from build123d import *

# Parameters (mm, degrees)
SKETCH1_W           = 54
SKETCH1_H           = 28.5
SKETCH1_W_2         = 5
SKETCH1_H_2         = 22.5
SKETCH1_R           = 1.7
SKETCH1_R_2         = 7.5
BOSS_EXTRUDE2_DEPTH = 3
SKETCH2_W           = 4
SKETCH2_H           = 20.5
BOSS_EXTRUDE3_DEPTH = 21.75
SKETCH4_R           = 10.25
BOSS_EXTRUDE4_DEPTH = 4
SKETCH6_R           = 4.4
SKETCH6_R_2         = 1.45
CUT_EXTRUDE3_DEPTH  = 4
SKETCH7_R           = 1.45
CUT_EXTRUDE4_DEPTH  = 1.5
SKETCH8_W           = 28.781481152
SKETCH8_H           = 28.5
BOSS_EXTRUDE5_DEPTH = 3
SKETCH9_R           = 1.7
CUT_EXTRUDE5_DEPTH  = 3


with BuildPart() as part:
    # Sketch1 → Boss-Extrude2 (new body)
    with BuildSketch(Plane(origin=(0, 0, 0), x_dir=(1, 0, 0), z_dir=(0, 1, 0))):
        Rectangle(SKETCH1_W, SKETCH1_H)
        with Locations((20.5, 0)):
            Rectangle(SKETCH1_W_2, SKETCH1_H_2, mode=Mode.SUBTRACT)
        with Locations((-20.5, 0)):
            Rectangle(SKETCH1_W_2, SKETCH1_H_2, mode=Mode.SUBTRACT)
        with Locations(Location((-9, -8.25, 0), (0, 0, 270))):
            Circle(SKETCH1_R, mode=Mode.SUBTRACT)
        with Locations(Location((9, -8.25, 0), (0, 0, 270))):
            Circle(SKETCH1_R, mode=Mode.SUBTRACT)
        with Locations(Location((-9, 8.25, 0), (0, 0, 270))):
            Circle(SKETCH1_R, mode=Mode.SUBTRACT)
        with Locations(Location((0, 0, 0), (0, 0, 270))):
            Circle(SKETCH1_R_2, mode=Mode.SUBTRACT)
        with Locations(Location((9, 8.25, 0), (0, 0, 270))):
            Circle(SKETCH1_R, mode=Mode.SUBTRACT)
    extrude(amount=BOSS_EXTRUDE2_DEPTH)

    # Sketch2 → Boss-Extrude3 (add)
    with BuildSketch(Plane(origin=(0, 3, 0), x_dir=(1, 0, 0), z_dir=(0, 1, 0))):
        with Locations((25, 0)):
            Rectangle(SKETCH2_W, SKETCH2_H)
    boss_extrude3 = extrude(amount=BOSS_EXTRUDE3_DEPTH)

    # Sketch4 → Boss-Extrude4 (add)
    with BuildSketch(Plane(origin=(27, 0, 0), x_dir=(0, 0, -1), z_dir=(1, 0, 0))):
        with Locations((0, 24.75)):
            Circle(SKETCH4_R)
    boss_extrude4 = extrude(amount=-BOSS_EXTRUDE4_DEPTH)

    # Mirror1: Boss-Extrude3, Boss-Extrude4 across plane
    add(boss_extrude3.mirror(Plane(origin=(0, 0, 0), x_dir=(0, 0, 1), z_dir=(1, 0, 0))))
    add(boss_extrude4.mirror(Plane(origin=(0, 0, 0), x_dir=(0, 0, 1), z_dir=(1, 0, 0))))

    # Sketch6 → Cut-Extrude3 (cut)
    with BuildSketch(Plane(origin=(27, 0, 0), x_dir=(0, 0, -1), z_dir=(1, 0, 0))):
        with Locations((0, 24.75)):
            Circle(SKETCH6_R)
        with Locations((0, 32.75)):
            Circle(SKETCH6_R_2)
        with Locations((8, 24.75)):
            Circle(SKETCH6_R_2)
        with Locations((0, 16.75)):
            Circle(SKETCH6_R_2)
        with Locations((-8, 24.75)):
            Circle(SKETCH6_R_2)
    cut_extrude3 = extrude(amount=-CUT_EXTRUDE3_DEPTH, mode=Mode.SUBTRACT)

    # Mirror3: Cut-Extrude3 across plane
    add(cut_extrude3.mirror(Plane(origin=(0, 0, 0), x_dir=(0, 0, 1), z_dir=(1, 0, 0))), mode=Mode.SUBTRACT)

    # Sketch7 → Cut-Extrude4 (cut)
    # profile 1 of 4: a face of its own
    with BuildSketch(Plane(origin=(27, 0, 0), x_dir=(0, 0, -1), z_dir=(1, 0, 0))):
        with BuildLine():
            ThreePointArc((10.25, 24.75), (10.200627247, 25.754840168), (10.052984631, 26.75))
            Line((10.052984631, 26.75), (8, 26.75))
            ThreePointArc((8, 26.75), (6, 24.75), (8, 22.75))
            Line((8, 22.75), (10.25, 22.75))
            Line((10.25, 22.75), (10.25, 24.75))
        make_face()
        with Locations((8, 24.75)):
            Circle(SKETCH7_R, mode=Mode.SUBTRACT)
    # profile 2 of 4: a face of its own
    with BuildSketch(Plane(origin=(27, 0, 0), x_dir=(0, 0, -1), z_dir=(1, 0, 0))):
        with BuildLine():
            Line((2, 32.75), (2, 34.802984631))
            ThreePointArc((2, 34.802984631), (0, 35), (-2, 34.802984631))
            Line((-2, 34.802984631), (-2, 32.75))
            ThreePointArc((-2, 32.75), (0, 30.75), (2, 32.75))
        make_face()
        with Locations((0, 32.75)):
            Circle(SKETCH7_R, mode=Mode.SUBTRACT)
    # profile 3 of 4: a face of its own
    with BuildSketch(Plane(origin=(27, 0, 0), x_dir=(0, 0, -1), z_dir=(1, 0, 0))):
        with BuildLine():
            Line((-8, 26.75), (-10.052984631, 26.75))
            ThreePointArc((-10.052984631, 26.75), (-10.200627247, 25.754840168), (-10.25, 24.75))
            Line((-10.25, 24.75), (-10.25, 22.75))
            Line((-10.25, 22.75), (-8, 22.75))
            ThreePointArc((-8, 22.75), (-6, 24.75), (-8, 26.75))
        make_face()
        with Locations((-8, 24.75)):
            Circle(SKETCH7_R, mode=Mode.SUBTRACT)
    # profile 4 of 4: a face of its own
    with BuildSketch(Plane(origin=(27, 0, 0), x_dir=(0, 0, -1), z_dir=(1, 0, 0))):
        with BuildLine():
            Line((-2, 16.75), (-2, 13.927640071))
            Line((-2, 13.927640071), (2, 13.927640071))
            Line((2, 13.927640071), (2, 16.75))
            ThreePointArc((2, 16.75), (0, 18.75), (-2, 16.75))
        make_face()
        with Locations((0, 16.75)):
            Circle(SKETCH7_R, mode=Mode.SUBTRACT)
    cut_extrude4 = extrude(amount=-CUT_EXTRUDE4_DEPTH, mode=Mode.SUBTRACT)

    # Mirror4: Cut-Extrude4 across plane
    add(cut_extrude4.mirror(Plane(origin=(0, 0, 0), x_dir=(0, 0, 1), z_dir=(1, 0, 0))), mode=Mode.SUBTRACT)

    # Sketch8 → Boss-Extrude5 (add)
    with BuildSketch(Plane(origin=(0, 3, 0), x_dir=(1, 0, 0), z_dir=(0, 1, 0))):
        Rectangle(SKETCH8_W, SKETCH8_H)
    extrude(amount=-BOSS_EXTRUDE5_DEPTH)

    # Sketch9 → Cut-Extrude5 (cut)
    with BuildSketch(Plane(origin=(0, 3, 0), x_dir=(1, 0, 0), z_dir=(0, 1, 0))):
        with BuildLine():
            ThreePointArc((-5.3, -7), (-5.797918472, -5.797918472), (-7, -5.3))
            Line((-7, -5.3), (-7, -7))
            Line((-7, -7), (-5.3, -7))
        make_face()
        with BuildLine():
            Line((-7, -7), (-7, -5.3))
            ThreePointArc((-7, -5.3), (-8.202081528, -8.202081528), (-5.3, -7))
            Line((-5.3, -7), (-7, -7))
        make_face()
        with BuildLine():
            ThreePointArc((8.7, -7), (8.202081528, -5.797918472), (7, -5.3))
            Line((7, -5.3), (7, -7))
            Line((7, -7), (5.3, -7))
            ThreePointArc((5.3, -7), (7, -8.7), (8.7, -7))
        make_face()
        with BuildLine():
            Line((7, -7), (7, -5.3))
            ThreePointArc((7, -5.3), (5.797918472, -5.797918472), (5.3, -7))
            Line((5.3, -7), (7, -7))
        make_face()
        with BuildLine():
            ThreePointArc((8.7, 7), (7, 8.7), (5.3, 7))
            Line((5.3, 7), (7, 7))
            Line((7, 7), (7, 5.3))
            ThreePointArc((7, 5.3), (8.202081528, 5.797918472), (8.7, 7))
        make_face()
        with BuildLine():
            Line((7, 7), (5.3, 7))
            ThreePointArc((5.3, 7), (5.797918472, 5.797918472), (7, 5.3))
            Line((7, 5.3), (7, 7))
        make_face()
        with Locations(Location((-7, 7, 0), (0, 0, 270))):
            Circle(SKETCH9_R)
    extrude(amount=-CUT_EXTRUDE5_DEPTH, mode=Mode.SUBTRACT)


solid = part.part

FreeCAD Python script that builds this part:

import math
import FreeCAD as App
import Part
import Sketcher

V = App.Vector
Q = App.Units.Quantity

doc = App.newDocument("Part")
body = doc.addObject("PartDesign::Body", "Body")

# Sketch on XZ plane
sketch1 = doc.addObject("Sketcher::SketchObject", "Sketch")
body.addObject(sketch1)
sketch1.AttachmentSupport = (doc.XZ_Plane, [""])
sketch1.MapMode = "FlatFace"
sketch1.addGeometry([
    Part.LineSegment(V(-27, -14.2, 0), V(-27, 14.2, 0)),  # 0
    Part.LineSegment(V(-27, 14.2, 0), V(27, 14.2, 0)),  # 1
    Part.LineSegment(V(27, 14.2, 0), V(27, -14.2, 0)),  # 2
    Part.LineSegment(V(27, -14.2, 0), V(-27, -14.2, 0)),  # 3
    Part.Circle(V(-9, 8.2, 0), V(0, 0, 1), 1.7),  # 4
    Part.Circle(V(9, 8.2, 0), V(0, 0, 1), 1.7),  # 5
    Part.LineSegment(V(-18, 11.2, 0), V(-23, 11.2, 0)),  # 6
    Part.LineSegment(V(-23, 11.2, 0), V(-23, -11.2, 0)),  # 7
    Part.LineSegment(V(-23, -11.2, 0), V(-18, -11.2, 0)),  # 8
    Part.LineSegment(V(-18, -11.2, 0), V(-18, 11.2, 0)),  # 9
    Part.Circle(V(-9, -8.2, 0), V(0, 0, 1), 1.7),  # 10
    Part.Circle(V(0, 0, 0), V(0, 0, 1), 7.5),  # 11
    Part.LineSegment(V(23, 11.2, 0), V(18, 11.2, 0)),  # 12
    Part.LineSegment(V(18, 11.2, 0), V(18, -11.2, 0)),  # 13
    Part.LineSegment(V(18, -11.2, 0), V(23, -11.2, 0)),  # 14
    Part.LineSegment(V(23, -11.2, 0), V(23, 11.2, 0)),  # 15
    Part.Circle(V(9, -8.2, 0), V(0, 0, 1), 1.7),  # 16
], False)
sketch1.addConstraint([
    Sketcher.Constraint("Coincident", 0, 2, 1, 1),
    Sketcher.Constraint("Coincident", 1, 2, 2, 1),
    Sketcher.Constraint("Coincident", 2, 2, 3, 1),
    Sketcher.Constraint("Coincident", 3, 2, 0, 1),
    Sketcher.Constraint("Coincident", 6, 2, 7, 1),
    Sketcher.Constraint("Coincident", 7, 2, 8, 1),
    Sketcher.Constraint("Coincident", 8, 2, 9, 1),
    Sketcher.Constraint("Coincident", 9, 2, 6, 1),
    Sketcher.Constraint("Coincident", 12, 2, 13, 1),
    Sketcher.Constraint("Coincident", 13, 2, 14, 1),
    Sketcher.Constraint("Coincident", 14, 2, 15, 1),
    Sketcher.Constraint("Coincident", 15, 2, 12, 1),
    Sketcher.Constraint("Vertical", 0),
    Sketcher.Constraint("Horizontal", 1),
    Sketcher.Constraint("Vertical", 2),
    Sketcher.Constraint("Horizontal", 3),
    Sketcher.Constraint("Horizontal", 6),
    Sketcher.Constraint("Vertical", 7),
    Sketcher.Constraint("Horizontal", 8),
    Sketcher.Constraint("Vertical", 9),
    Sketcher.Constraint("Horizontal", 12),
    Sketcher.Constraint("Vertical", 13),
    Sketcher.Constraint("Horizontal", 14),
    Sketcher.Constraint("Vertical", 15),
    Sketcher.Constraint("Coincident", 11, 3, -1, 1),
    Sketcher.Constraint("Equal", 4, 5),
    Sketcher.Constraint("Equal", 5, 10),
    Sketcher.Constraint("Equal", 10, 16),
    Sketcher.Constraint("Symmetric", 5, 3, 10, 3, -1, 1),
    Sketcher.Constraint("Symmetric", 4, 3, 16, 3, -1, 1),
    Sketcher.Constraint("Symmetric", 0, 2, 2, 2, -1, 1),
    Sketcher.Constraint("Symmetric", 8, 2, 12, 2, -1, 1),
    Sketcher.Constraint("Symmetric", 6, 2, 14, 2, -1, 1),
    Sketcher.Constraint("Symmetric", 4, 3, 5, 3, -2),
    Sketcher.Constraint("Horizontal", 9, 2, 12, 2),
    Sketcher.Constraint("Diameter", 11, Q("15 mm")),
    Sketcher.Constraint("Diameter", 4, Q("3.4 mm")),
    Sketcher.Constraint("DistanceX", 1, 1, 1, 2, Q("54 mm")),
    Sketcher.Constraint("DistanceX", 6, 2, 6, 1, Q("5 mm")),
    Sketcher.Constraint("DistanceY", 0, 1, 0, 2, Q("28.5 mm")),
    Sketcher.Constraint("DistanceY", 7, 2, 7, 1, Q("22.5 mm")),
    Sketcher.Constraint("DistanceX", 4, 3, -1, 1, Q("9 mm")),
    Sketcher.Constraint("DistanceX", 6, 2, -1, 1, Q("23 mm")),
    Sketcher.Constraint("DistanceY", 4, 3, 0, 2, Q("6 mm")),
])
pad1 = doc.addObject("PartDesign::Pad", "Pad")
body.addObject(pad1)
pad1.Profile = sketch1
pad1.Length = 3
pad1.Reversed = True

# Sketch on XZ plane
sketch2 = doc.addObject("Sketcher::SketchObject", "Sketch001")
body.addObject(sketch2)
sketch2.AttachmentSupport = (doc.XZ_Plane, [""])
sketch2.MapMode = "FlatFace"
sketch2.AttachmentOffset = App.Placement(V(0, 0, -3), App.Rotation())
sketch2.addGeometry([
    Part.LineSegment(V(23, -10.2, 0), V(23, 10.2, 0)),
    Part.LineSegment(V(23, 10.2, 0), V(27, 10.2, 0)),
    Part.LineSegment(V(27, 10.2, 0), V(27, -10.2, 0)),
    Part.LineSegment(V(27, -10.2, 0), V(23, -10.2, 0)),
], False)
sketch2.addConstraint([
    Sketcher.Constraint("Coincident", 0, 2, 1, 1),
    Sketcher.Constraint("Coincident", 1, 2, 2, 1),
    Sketcher.Constraint("Coincident", 2, 2, 3, 1),
    Sketcher.Constraint("Coincident", 3, 2, 0, 1),
    Sketcher.Constraint("Vertical", 0),
    Sketcher.Constraint("Horizontal", 1),
    Sketcher.Constraint("Vertical", 2),
    Sketcher.Constraint("Horizontal", 3),
    Sketcher.Constraint("DistanceX", 1, 1, 1, 2, Q("4 mm")),
    Sketcher.Constraint("DistanceY", 0, 1, 0, 2, Q("20.5 mm")),
    Sketcher.Constraint("DistanceX", -1, 1, 0, 2, Q("23 mm")),
    Sketcher.Constraint("DistanceY", -1, 1, 0, 2, Q("10.25 mm")),
])
pad2 = doc.addObject("PartDesign::Pad", "Pad001")
body.addObject(pad2)
pad2.Profile = sketch2
pad2.Length = 21.75
pad2.Reversed = True

# Sketch on YZ plane
sketch3 = doc.addObject("Sketcher::SketchObject", "Sketch002")
body.addObject(sketch3)
sketch3.AttachmentSupport = (doc.YZ_Plane, [""])
sketch3.MapMode = "FlatFace"
sketch3.AttachmentOffset = App.Placement(V(0, 0, 27), App.Rotation())
sketch3.addGeometry(Part.Circle(V(25, 0, 0), V(0, 0, 1), 10), False)
sketch3.addConstraint([
    Sketcher.Constraint("PointOnObject", 0, 3, -1),
    Sketcher.Constraint("Diameter", 0, Q("20.5 mm")),
    Sketcher.Constraint("DistanceX", -1, 1, 0, 3, Q("24.75 mm")),
])
pad3 = doc.addObject("PartDesign::Pad", "Pad002")
body.addObject(pad3)
pad3.Profile = sketch3
pad3.Length = 4
pad3.Reversed = True
doc.recompute()

mirrored = doc.addObject("PartDesign::Mirrored", "Mirrored")
body.addObject(mirrored)
mirrored.Originals = [pad2, pad3]
mirrored.MirrorPlane = (doc.YZ_Plane, [""])
body.Tip = mirrored

# Sketch on YZ plane
sketch4 = doc.addObject("Sketcher::SketchObject", "Sketch003")
body.addObject(sketch4)
sketch4.AttachmentSupport = (doc.YZ_Plane, [""])
sketch4.MapMode = "FlatFace"
sketch4.AttachmentOffset = App.Placement(V(0, 0, 27), App.Rotation())
sketch4.addGeometry([
    Part.Circle(V(24.8, 0, 0), V(0, 0, 1), 4.4),  # 0
    Part.Circle(V(32.8, 0, 0), V(0, 0, 1), 1.4),  # 1
    Part.Circle(V(24.8, -8, 0), V(0, 0, 1), 1.4),  # 2
    Part.Circle(V(16.8, 0, 0), V(0, 0, 1), 1.4),  # 3
    Part.Circle(V(24.8, 8, 0), V(0, 0, 1), 1.4),  # 4
], False)
sketch4.addConstraint([
    Sketcher.Constraint("Equal", 1, 2),
    Sketcher.Constraint("Equal", 2, 3),
    Sketcher.Constraint("Equal", 3, 4),
    Sketcher.Constraint("Symmetric", 2, 3, 4, 3, -1),
    Sketcher.Constraint("PointOnObject", 0, 3, -1),
    Sketcher.Constraint("PointOnObject", 1, 3, -1),
    Sketcher.Constraint("PointOnObject", 3, 3, -1),
    Sketcher.Constraint("Vertical", 0, 3, 2, 3),
    Sketcher.Constraint("Diameter", 0, Q("8.8 mm")),
    Sketcher.Constraint("Diameter", 1, Q("2.9 mm")),
    Sketcher.Constraint("DistanceY", 2, 3, -1, 1, Q("8 mm")),
    Sketcher.Constraint("DistanceX", 0, 3, 1, 3, Q("8 mm")),
    Sketcher.Constraint("DistanceX", 3, 3, 0, 3, Q("8 mm")),
    Sketcher.Constraint("DistanceX", -1, 1, 0, 3, Q("24.75 mm")),
])
pocket1 = doc.addObject("PartDesign::Pocket", "Pocket")
body.addObject(pocket1)
pocket1.Profile = sketch4
pocket1.Length = 4
doc.recompute()

mirrored2 = doc.addObject("PartDesign::Mirrored", "Mirrored001")
body.addObject(mirrored2)
mirrored2.Originals = [pocket1]
mirrored2.MirrorPlane = (doc.YZ_Plane, [""])
body.Tip = mirrored2

# Sketch on YZ plane
sketch5 = doc.addObject("Sketcher::SketchObject", "Sketch004")
body.addObject(sketch5)
sketch5.AttachmentSupport = (doc.YZ_Plane, [""])
sketch5.MapMode = "FlatFace"
sketch5.AttachmentOffset = App.Placement(V(0, 0, 27), App.Rotation())
sketch5.addGeometry([
    Part.ArcOfCircle(Part.Circle(V(24.7, 0, 0), V(0, 0, 1), 10.3), math.radians(-90), math.radians(-78.75)),  # 0
    Part.LineSegment(V(26.8, -10.1, 0), V(26.8, -8, 0)),  # 1
    Part.ArcOfCircle(Part.Circle(V(24.8, -8, 0), V(0, 0, 1), 2), math.radians(0), math.radians(180)),  # 2
    Part.LineSegment(V(22.8, -8, 0), V(22.8, -10.2, 0)),  # 3
    Part.LineSegment(V(22.8, -10.2, 0), V(24.8, -10.2, 0)),  # 4
    Part.Circle(V(24.8, -8, 0), V(0, 0, 1), 1.4),  # 5
    Part.LineSegment(V(32.8, -2, 0), V(34.8, -2, 0)),  # 6
    Part.ArcOfCircle(Part.Circle(V(24.8, 0, 0), V(0, 0, 1), 10.2), math.radians(-11), math.radians(11)),  # 7
    Part.LineSegment(V(34.8, 2, 0), V(32.8, 2, 0)),  # 8
    Part.ArcOfCircle(Part.Circle(V(32.8, 0, 0), V(0, 0, 1), 2), math.radians(90), math.radians(270)),  # 9
    Part.Circle(V(32.8, 0, 0), V(0, 0, 1), 1.4),  # 10
    Part.LineSegment(V(26.8, 8, 0), V(26.8, 10.1, 0)),  # 11
    Part.ArcOfCircle(Part.Circle(V(24.7, 0, 0), V(0, 0, 1), 10.3), math.radians(78.75), math.radians(90)),  # 12
    Part.LineSegment(V(24.8, 10.2, 0), V(22.8, 10.2, 0)),  # 13
    Part.LineSegment(V(22.8, 10.2, 0), V(22.8, 8, 0)),  # 14
    Part.ArcOfCircle(Part.Circle(V(24.8, 8, 0), V(0, 0, 1), 2), math.radians(180), math.radians(360)),  # 15
    Part.Circle(V(24.8, 8, 0), V(0, 0, 1), 1.4),  # 16
    Part.LineSegment(V(16.8, 2, 0), V(13.9, 2, 0)),  # 17
    Part.LineSegment(V(13.9, 2, 0), V(13.9, -2, 0)),  # 18
    Part.LineSegment(V(13.9, -2, 0), V(16.8, -2, 0)),  # 19
    Part.ArcOfCircle(Part.Circle(V(16.8, 0, 0), V(0, 0, 1), 2), math.radians(-90), math.radians(90)),  # 20
    Part.Circle(V(16.8, 0, 0), V(0, 0, 1), 1.4),  # 21
], False)
sketch5.addConstraint([
    Sketcher.Constraint("Coincident", 0, 2, 1, 1),
    Sketcher.Constraint("Tangent", 1, 2, 2, 1),
    Sketcher.Constraint("Tangent", 2, 2, 3, 1),
    Sketcher.Constraint("Coincident", 3, 2, 4, 1),
    Sketcher.Constraint("Tangent", 4, 2, 0, 1),
    Sketcher.Constraint("Coincident", 6, 2, 7, 1),
    Sketcher.Constraint("Coincident", 7, 2, 8, 1),
    Sketcher.Constraint("Tangent", 8, 2, 9, 1),
    Sketcher.Constraint("Tangent", 9, 2, 6, 1),
    Sketcher.Constraint("Coincident", 11, 2, 12, 1),
    Sketcher.Constraint("Tangent", 12, 2, 13, 1),
    Sketcher.Constraint("Coincident", 13, 2, 14, 1),
    Sketcher.Constraint("Tangent", 14, 2, 15, 1),
    Sketcher.Constraint("Tangent", 15, 2, 11, 1),
    Sketcher.Constraint("Coincident", 17, 2, 18, 1),
    Sketcher.Constraint("Coincident", 18, 2, 19, 1),
    Sketcher.Constraint("Tangent", 19, 2, 20, 1),
    Sketcher.Constraint("Tangent", 20, 2, 17, 1),
    Sketcher.Constraint("Vertical", 1),
    Sketcher.Constraint("Vertical", 3),
    Sketcher.Constraint("Horizontal", 4),
    Sketcher.Constraint("Horizontal", 6),
    Sketcher.Constraint("Horizontal", 8),
    Sketcher.Constraint("Vertical", 11),
    Sketcher.Constraint("Horizontal", 13),
    Sketcher.Constraint("Vertical", 14),
    Sketcher.Constraint("Horizontal", 17),
    Sketcher.Constraint("Vertical", 18),
    Sketcher.Constraint("Horizontal", 19),
    Sketcher.Constraint("Coincident", 5, 3, 2, 3),
    Sketcher.Constraint("Coincident", 7, 3, 0, 3),
    Sketcher.Constraint("Coincident", 10, 3, 9, 3),
    Sketcher.Constraint("Coincident", 12, 3, 0, 3),
    Sketcher.Constraint("Coincident", 16, 3, 15, 3),
    Sketcher.Constraint("Coincident", 21, 3, 20, 3),
    Sketcher.Constraint("Equal", 0, 7),
    Sketcher.Constraint("Equal", 2, 9),
    Sketcher.Constraint("Equal", 5, 10),
    Sketcher.Constraint("Equal", 7, 12),
    Sketcher.Constraint("Equal", 9, 15),
    Sketcher.Constraint("Equal", 10, 16),
    Sketcher.Constraint("Equal", 15, 20),
    Sketcher.Constraint("Equal", 16, 21),
    Sketcher.Constraint("Symmetric", 2, 3, 15, 3, -1),
    Sketcher.Constraint("Symmetric", 6, 2, 7, 2, -1),
    Sketcher.Constraint("PointOnObject", 20, 3, -1),
    Sketcher.Constraint("Vertical", 0, 3, 2, 3),
    Sketcher.Constraint("Equal", 8, 1),
    Sketcher.Constraint("Radius", 2, Q("2 mm")),
    Sketcher.Constraint("Diameter", 5, Q("2.9 mm")),
    Sketcher.Constraint("Radius", 0, Q("10.25 mm")),
    Sketcher.Constraint("DistanceY", 2, 3, -1, 1, Q("8 mm")),
    Sketcher.Constraint("DistanceX", 20, 3, 0, 3, Q("8 mm")),
    Sketcher.Constraint("DistanceX", -1, 1, 0, 3, Q("24.75 mm")),
    Sketcher.Constraint("DistanceX", 17, 2, 17, 1, Q("2.82236 mm")),
])
pocket2 = doc.addObject("PartDesign::Pocket", "Pocket001")
body.addObject(pocket2)
pocket2.Profile = sketch5
pocket2.Length = 1.5
doc.recompute()

mirrored3 = doc.addObject("PartDesign::Mirrored", "Mirrored002")
body.addObject(mirrored3)
mirrored3.Originals = [pocket2]
mirrored3.MirrorPlane = (doc.YZ_Plane, [""])
body.Tip = mirrored3

# Sketch on XZ plane
sketch6 = doc.addObject("Sketcher::SketchObject", "Sketch005")
body.addObject(sketch6)
sketch6.AttachmentSupport = (doc.XZ_Plane, [""])
sketch6.MapMode = "FlatFace"
sketch6.AttachmentOffset = App.Placement(V(0, 0, -3), App.Rotation())
sketch6.addGeometry([
    Part.LineSegment(V(-14, -14, 0), V(-14, 14, 0)),
    Part.LineSegment(V(-14, 14, 0), V(14, 14, 0)),
    Part.LineSegment(V(14, 14, 0), V(14, -14, 0)),
    Part.LineSegment(V(14, -14, 0), V(-14, -14, 0)),
], False)
sketch6.addConstraint([
    Sketcher.Constraint("Coincident", 0, 2, 1, 1),
    Sketcher.Constraint("Coincident", 1, 2, 2, 1),
    Sketcher.Constraint("Coincident", 2, 2, 3, 1),
    Sketcher.Constraint("Coincident", 3, 2, 0, 1),
    Sketcher.Constraint("Vertical", 0),
    Sketcher.Constraint("Horizontal", 1),
    Sketcher.Constraint("Vertical", 2),
    Sketcher.Constraint("Horizontal", 3),
    Sketcher.Constraint("Symmetric", 0, 2, 2, 2, -1, 1),
    Sketcher.Constraint("DistanceY", 0, 1, 0, 2, Q("28.5 mm")),
    Sketcher.Constraint("DistanceX", 1, 1, 1, 2, Q("28.781481 mm")),
])
pad4 = doc.addObject("PartDesign::Pad", "Pad003")
body.addObject(pad4)
pad4.Profile = sketch6
pad4.Length = 3

# Sketch on XZ plane
sketch7 = doc.addObject("Sketcher::SketchObject", "Sketch006")
body.addObject(sketch7)
sketch7.AttachmentSupport = (doc.XZ_Plane, [""])
sketch7.MapMode = "FlatFace"
sketch7.AttachmentOffset = App.Placement(V(0, 0, -3), App.Rotation())
sketch7.addGeometry([
    Part.ArcOfCircle(Part.Circle(V(-7, 7, 0), V(0, 0, 1), 1.7), math.radians(-90), math.radians(0)),  # 0
    Part.ArcOfCircle(Part.Circle(V(-7, 7, 0), V(0, 0, 1), 1.7), math.radians(0), math.radians(270)),  # 1
    Part.ArcOfCircle(Part.Circle(V(7, 7, 0), V(0, 0, 1), 1.7), math.radians(-90), math.radians(0)),  # 2
    Part.ArcOfCircle(Part.Circle(V(7, 7, 0), V(0, 0, 1), 1.7), math.radians(180), math.radians(270)),  # 3
    Part.ArcOfCircle(Part.Circle(V(7, 7, 0), V(0, 0, 1), 1.7), math.radians(0), math.radians(180)),  # 4
    Part.ArcOfCircle(Part.Circle(V(7, -7, 0), V(0, 0, 1), 1.7), math.radians(180), math.radians(360)),  # 5
    Part.ArcOfCircle(Part.Circle(V(7, -7, 0), V(0, 0, 1), 1.7), math.radians(90), math.radians(180)),  # 6
    Part.ArcOfCircle(Part.Circle(V(7, -7, 0), V(0, 0, 1), 1.7), math.radians(0), math.radians(90)),  # 7
    Part.Circle(V(-7, -7, 0), V(0, 0, 1), 1.7),  # 8
], False)
sketch7.addConstraint([
    Sketcher.Constraint("Tangent", 0, 1, 1, 2),
    Sketcher.Constraint("Coincident", 1, 1, 0, 2),
    Sketcher.Constraint("Tangent", 2, 1, 3, 2),
    Sketcher.Constraint("Tangent", 3, 1, 4, 2),
    Sketcher.Constraint("Tangent", 4, 1, 2, 2),
    Sketcher.Constraint("Tangent", 5, 1, 6, 2),
    Sketcher.Constraint("Tangent", 6, 1, 7, 2),
    Sketcher.Constraint("Tangent", 7, 1, 5, 2),
    Sketcher.Constraint("Equal", 1, 2),
    Sketcher.Constraint("Equal", 4, 5),
    Sketcher.Constraint("Equal", 7, 8),
    Sketcher.Constraint("Symmetric", 0, 3, 5, 3, -1, 1),
    Sketcher.Constraint("Symmetric", 2, 3, 8, 3, -1, 1),
    Sketcher.Constraint("Symmetric", 0, 3, 2, 3, -2),
    Sketcher.Constraint("Horizontal", 4, 3, 1, 1),
    Sketcher.Constraint("Horizontal", 1, 1, 3, 1),
    Sketcher.Constraint("Horizontal", 3, 1, 4, 1),
    Sketcher.Constraint("Horizontal", 8, 3, 5, 1),
    Sketcher.Constraint("Horizontal", 5, 1, 7, 1),
    Sketcher.Constraint("Vertical", 8, 3, 0, 1),
    Sketcher.Constraint("Vertical", 7, 3, 2, 1),
    Sketcher.Constraint("Vertical", 2, 1, 6, 1),
    Sketcher.Constraint("Diameter", 8, Q("3.4 mm")),
    Sketcher.Constraint("DistanceX", 0, 3, -1, 1, Q("7 mm")),
    Sketcher.Constraint("DistanceY", -1, 1, 0, 3, Q("7 mm")),
])
pocket3 = doc.addObject("PartDesign::Pocket", "Pocket002")
body.addObject(pocket3)
pocket3.Profile = sketch7
pocket3.Length = 3
pocket3.Reversed = True

doc.recompute()
